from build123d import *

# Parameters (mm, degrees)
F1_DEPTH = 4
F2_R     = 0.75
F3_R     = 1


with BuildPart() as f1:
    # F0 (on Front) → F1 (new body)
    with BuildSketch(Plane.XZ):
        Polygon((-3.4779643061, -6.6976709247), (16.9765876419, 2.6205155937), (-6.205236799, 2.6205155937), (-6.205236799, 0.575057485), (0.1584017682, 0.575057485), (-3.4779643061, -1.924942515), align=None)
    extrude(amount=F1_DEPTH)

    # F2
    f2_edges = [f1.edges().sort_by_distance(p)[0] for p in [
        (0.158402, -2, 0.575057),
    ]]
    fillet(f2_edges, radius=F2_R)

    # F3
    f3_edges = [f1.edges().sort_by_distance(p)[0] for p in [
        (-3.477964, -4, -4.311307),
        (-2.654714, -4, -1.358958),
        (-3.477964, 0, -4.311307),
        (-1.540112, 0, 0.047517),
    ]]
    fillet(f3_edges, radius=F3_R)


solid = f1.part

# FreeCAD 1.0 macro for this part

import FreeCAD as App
import Part
import Sketcher


def edges_at(feature, points):
    """Names of the edges that pass closest to the given points."""
    edges = feature.Shape.Edges
    near = lambda p: min(range(len(edges)), key=lambda i: edges[i].distToShape(Part.Vertex(*p))[0])
    return sorted({f"Edge{near(p) + 1}" for p in points})

doc = App.newDocument("Part")
body = doc.addObject("PartDesign::Body", "Body")

sketch1 = body.newObject("Sketcher::SketchObject", "Sketch")
sketch1.AttachmentSupport = (doc.getObject("XZ_Plane"), [""])
sketch1.MapMode = "FlatFace"
sketch1.addGeometry([
    Part.LineSegment(App.Vector(-3.477964, -6.697671, 0), App.Vector(16.976588, 2.620516, 0)),
    Part.LineSegment(App.Vector(16.976588, 2.620516, 0), App.Vector(-6.205237, 2.620516, 0)),
    Part.LineSegment(App.Vector(-6.205237, 2.620516, 0), App.Vector(-6.205237, 0.575057, 0)),
    Part.LineSegment(App.Vector(-6.205237, 0.575057, 0), App.Vector(0.158402, 0.575057, 0)),
    Part.LineSegment(App.Vector(0.158402, 0.575057, 0), App.Vector(-3.477964, -1.924943, 0)),
    Part.LineSegment(App.Vector(-3.477964, -1.924943, 0), App.Vector(-3.477964, -6.697671, 0)),
], False)
sketch1.addConstraint([
    Sketcher.Constraint("Coincident", 0, 2, 1, 1),
    Sketcher.Constraint("Coincident", 1, 2, 2, 1),
    Sketcher.Constraint("Coincident", 2, 2, 3, 1),
    Sketcher.Constraint("Coincident", 3, 2, 4, 1),
    Sketcher.Constraint("Coincident", 4, 2, 5, 1),
    Sketcher.Constraint("Coincident", 5, 2, 0, 1),
    Sketcher.Constraint("Horizontal", 1),
    Sketcher.Constraint("Vertical", 2),
    Sketcher.Constraint("Horizontal", 3),
    Sketcher.Constraint("Vertical", 5),
    Sketcher.Constraint("DistanceY", 4, 2, 2, 2, 2.5),
    Sketcher.Constraint("DistanceX", 3, 1, 3, 2, 6.363639),
    Sketcher.Constraint("DistanceY", 2, 2, 2, 1, 2.045458),
    Sketcher.Constraint("DistanceY", 5, 2, 5, 1, 4.772728),
    Sketcher.Constraint("DistanceX", -1, 1, 3, 2, 0.158402),
    Sketcher.Constraint("Distance", 0, 22.477039),
    Sketcher.Constraint("Distance", 4, 4.41284),
    Sketcher.Constraint("DistanceY", 5, 2, -1, 1, 6.697671),
])
pad1 = body.newObject("PartDesign::Pad", "Pad")
pad1.Profile = sketch1
pad1.Length = 4
doc.recompute()

fillet = body.newObject("PartDesign::Fillet", "Fillet")
fillet.Base = (pad1, edges_at(pad1, [(0.158, -2, 0.575)]))
fillet.Radius = 0.75
doc.recompute()

fillet2 = body.newObject("PartDesign::Fillet", "Fillet001")
fillet2.Base = (fillet, edges_at(fillet, [
    (-3.478, -4, -4.311),
    (-2.655, -4, -1.359),
    (-3.478, 0, -4.311),
    (-1.54, 0, 0.048),
]))
fillet2.Radius = 1

doc.recompute()
